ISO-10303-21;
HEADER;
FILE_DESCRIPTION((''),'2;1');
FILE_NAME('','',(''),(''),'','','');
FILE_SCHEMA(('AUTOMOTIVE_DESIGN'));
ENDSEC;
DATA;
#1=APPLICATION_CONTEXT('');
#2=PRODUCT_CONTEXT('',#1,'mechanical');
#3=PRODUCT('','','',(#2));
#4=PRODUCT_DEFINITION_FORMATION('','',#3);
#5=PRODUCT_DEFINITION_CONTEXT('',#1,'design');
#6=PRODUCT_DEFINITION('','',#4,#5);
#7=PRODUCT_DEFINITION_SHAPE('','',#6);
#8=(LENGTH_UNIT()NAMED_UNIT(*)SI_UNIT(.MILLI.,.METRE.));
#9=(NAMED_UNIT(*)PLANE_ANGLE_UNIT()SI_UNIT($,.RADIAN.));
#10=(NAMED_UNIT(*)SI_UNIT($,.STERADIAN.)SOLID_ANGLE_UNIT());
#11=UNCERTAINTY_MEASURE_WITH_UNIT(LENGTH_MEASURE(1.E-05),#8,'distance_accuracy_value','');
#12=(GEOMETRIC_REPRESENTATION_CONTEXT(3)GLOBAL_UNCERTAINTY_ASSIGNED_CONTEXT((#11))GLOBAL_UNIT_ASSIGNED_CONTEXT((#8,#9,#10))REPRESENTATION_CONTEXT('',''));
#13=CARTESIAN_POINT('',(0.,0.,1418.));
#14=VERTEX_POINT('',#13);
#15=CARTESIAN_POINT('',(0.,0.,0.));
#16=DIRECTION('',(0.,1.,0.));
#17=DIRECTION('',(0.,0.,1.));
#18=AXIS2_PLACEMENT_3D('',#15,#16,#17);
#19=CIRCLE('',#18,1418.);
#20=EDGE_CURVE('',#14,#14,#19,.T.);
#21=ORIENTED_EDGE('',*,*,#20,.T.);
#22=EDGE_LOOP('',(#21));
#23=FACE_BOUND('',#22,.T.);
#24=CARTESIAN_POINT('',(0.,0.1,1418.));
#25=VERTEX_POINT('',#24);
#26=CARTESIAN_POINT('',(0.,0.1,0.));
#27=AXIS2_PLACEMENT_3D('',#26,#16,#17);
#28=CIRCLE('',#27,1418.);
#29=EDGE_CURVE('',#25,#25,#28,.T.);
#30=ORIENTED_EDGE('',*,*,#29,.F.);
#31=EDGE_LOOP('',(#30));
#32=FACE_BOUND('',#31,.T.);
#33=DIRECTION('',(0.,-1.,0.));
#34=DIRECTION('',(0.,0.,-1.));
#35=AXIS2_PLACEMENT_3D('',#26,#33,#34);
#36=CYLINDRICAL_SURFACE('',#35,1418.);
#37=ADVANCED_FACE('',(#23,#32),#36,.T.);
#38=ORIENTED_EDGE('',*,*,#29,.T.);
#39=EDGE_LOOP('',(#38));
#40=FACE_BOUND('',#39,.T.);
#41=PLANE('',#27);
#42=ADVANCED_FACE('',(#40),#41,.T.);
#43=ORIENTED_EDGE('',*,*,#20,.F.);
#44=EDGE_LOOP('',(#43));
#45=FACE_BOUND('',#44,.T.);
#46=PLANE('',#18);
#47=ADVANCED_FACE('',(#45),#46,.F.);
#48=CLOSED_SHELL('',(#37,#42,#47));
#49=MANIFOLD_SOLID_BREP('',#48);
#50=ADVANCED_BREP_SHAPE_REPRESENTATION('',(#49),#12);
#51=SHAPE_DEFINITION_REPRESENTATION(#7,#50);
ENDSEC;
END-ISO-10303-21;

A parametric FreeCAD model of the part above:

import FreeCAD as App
import Part
import Sketcher

V = App.Vector
Q = App.Units.Quantity

doc = App.newDocument("Part")
body = doc.addObject("PartDesign::Body", "Body")

# Sketch on XZ plane
sketch1 = body.newObject("Sketcher::SketchObject", "Sketch")
sketch1.AttachmentSupport = (doc.getObject("XZ_Plane"), [""])
sketch1.MapMode = "FlatFace"
sketch1.addGeometry(Part.Circle(V(0, 0, 0), V(0, 0, 1), 1418), False)
sketch1.addConstraint([
    Sketcher.Constraint("Coincident", 0, 3, -1, 1),
    Sketcher.Constraint("Diameter", 0, Q("2836 mm")),
])
pad1 = body.newObject("PartDesign::Pad", "Pad")
pad1.Profile = sketch1
pad1.Length = 0.1
pad1.Reversed = True

doc.recompute()
